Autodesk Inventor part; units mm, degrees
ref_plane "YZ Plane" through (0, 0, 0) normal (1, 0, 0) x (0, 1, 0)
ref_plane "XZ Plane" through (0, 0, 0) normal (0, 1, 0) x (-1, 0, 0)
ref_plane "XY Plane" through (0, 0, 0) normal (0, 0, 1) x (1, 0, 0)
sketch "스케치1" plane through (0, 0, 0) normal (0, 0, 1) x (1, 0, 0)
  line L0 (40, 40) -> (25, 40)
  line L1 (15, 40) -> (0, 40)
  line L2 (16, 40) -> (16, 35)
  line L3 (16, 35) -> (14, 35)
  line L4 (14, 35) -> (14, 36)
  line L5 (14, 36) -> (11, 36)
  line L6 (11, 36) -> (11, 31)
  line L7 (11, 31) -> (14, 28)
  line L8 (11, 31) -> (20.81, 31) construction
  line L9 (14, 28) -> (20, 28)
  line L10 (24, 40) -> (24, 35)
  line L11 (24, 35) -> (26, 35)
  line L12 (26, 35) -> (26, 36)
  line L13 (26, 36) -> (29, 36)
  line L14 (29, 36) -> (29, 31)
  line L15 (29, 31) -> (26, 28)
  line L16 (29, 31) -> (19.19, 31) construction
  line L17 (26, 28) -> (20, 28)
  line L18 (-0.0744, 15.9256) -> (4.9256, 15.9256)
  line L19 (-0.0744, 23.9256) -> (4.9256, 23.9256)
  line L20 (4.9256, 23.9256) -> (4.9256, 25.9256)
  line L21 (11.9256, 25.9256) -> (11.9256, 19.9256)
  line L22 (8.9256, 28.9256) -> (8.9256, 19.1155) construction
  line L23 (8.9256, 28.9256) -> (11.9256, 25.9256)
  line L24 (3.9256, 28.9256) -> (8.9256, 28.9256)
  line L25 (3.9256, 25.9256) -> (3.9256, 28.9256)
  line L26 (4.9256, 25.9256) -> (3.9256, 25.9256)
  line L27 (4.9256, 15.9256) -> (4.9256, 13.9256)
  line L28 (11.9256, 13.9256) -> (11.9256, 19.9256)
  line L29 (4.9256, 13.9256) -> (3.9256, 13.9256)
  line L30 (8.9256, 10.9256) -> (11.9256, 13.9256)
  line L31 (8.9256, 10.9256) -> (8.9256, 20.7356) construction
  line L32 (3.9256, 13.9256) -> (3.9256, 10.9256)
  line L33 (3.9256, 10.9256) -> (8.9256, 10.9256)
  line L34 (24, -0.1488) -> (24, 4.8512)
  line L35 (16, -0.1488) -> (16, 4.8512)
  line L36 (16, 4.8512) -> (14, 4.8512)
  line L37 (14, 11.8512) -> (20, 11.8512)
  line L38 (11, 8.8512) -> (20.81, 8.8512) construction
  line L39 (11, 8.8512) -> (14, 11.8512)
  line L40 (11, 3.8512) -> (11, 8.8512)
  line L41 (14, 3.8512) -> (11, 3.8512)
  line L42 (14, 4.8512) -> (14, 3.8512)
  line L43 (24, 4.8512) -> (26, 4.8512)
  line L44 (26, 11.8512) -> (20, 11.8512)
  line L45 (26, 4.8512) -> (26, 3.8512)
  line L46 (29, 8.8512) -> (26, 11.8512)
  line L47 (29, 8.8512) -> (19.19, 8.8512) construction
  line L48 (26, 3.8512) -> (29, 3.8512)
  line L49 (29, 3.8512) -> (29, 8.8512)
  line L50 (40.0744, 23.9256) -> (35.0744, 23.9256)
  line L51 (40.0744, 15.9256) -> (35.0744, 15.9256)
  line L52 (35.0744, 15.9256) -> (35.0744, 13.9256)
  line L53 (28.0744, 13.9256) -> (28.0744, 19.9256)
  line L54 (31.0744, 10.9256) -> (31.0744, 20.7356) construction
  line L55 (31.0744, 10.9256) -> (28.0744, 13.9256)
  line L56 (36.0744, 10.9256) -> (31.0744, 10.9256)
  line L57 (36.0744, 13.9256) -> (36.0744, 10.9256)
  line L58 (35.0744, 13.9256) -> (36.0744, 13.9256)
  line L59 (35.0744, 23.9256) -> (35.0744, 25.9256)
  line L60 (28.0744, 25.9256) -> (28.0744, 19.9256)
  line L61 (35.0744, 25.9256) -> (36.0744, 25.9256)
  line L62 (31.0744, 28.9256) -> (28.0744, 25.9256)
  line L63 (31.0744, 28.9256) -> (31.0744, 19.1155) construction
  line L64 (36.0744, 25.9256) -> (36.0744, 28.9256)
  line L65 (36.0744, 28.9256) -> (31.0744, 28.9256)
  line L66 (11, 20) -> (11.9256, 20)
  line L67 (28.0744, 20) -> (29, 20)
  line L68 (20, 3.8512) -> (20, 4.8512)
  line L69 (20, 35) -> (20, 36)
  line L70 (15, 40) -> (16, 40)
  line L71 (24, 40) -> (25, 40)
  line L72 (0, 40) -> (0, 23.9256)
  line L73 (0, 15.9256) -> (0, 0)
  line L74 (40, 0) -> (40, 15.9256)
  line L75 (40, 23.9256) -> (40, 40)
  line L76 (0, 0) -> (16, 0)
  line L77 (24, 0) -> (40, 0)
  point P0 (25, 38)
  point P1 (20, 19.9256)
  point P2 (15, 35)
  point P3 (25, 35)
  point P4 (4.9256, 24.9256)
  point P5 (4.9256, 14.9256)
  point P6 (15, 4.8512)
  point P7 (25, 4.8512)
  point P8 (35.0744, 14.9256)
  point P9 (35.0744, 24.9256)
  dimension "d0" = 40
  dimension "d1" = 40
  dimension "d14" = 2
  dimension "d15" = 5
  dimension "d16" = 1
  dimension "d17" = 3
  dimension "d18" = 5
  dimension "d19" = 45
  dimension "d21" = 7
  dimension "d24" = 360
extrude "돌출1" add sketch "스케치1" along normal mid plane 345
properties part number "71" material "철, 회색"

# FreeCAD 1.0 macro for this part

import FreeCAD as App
import Part
import Sketcher

V = App.Vector
Q = App.Units.Quantity


def add_polygon(sketch, points):
    """Adds a closed chain of lines whose ends are joined by coincident constraints."""
    first, n = sketch.GeometryCount, len(points)
    for a, b in zip(points, points[1:] + points[:1]):
        sketch.addGeometry(Part.LineSegment(App.Vector(*a, 0), App.Vector(*b, 0)), False)
    for i in range(n):
        sketch.addConstraint(Sketcher.Constraint("Coincident", first + i, 2, first + (i + 1) % n, 1))

doc = App.newDocument("Part")
params = doc.addObject("Spreadsheet::Sheet", "Params")
for row, (alias, value) in enumerate([
    ("sketch1_width", "2 mm"),
    ("sketch1_width2", "3 mm"),
    ("sketch1_width3", "1 mm"),
    ("sketch1_width4", "5 mm"),
    ("sketch1_width5", "16 mm"),
    ("pad1_length", "345 mm"),
], start=1):
    params.set(f"A{row}", alias)
    params.set(f"B{row}", "=" + value)
    params.setAlias(f"B{row}", alias)

body = doc.addObject("PartDesign::Body", "Body")

# Sketch on XY plane
sketch1 = doc.addObject("Sketcher::SketchObject", "Sketch")
body.addObject(sketch1)
sketch1.AttachmentSupport = (doc.XY_Plane, [""])
sketch1.MapMode = "FlatFace"
add_polygon(sketch1, [(40, 23.9), (40, 40), (24, 40), (24, 35), (26, 35), (26, 36), (29, 36), (29, 31), (26, 28), (14, 28), (11, 31), (11, 36), (14, 36), (14, 35), (16, 35), (16, 40), (0, 40), (0, 23.9), (4.9, 23.9), (4.9, 25.9), (3.9, 25.9), (3.9, 28.9), (8.9, 28.9), (11.9, 25.9), (11.9, 13.9), (8.9, 10.9), (3.9, 10.9), (3.9, 13.9), (4.9, 13.9), (4.9, 15.9), (0, 15.9), (0, 0), (16, 0), (16, 4.9), (14, 4.9), (14, 3.9), (11, 3.9), (11, 8.9), (14, 11.9), (26, 11.9), (29, 8.9), (29, 3.9), (26, 3.9), (26, 4.9), (24, 4.9), (24, 0), (40, 0), (40, 15.9), (35.1, 15.9), (35.1, 13.9), (36.1, 13.9), (36.1, 10.9), (31.1, 10.9), (28.1, 13.9), (28.1, 25.9), (31.1, 28.9), (36.1, 28.9), (36.1, 25.9), (35.1, 25.9), (35.1, 23.9)])  # lines 0-59
sketch1.addConstraint(Sketcher.Constraint("Vertical", 0))
sketch1.addConstraint(Sketcher.Constraint("Horizontal", 1))
sketch1.addConstraint(Sketcher.Constraint("Vertical", 2))
sketch1.addConstraint(Sketcher.Constraint("Horizontal", 3))
sketch1.addConstraint(Sketcher.Constraint("Vertical", 4))
sketch1.addConstraint(Sketcher.Constraint("Horizontal", 5))
sketch1.addConstraint(Sketcher.Constraint("Vertical", 6))
sketch1.addConstraint(Sketcher.Constraint("Horizontal", 8))
sketch1.addConstraint(Sketcher.Constraint("Vertical", 10))
sketch1.addConstraint(Sketcher.Constraint("Horizontal", 11))
sketch1.addConstraint(Sketcher.Constraint("Vertical", 12))
sketch1.addConstraint(Sketcher.Constraint("Horizontal", 13))
sketch1.addConstraint(Sketcher.Constraint("Vertical", 14))
sketch1.addConstraint(Sketcher.Constraint("Horizontal", 15))
sketch1.addConstraint(Sketcher.Constraint("Vertical", 16))
sketch1.addConstraint(Sketcher.Constraint("Horizontal", 17))
sketch1.addConstraint(Sketcher.Constraint("Vertical", 18))
sketch1.addConstraint(Sketcher.Constraint("Horizontal", 19))
sketch1.addConstraint(Sketcher.Constraint("Vertical", 20))
sketch1.addConstraint(Sketcher.Constraint("Horizontal", 21))
sketch1.addConstraint(Sketcher.Constraint("Vertical", 23))
sketch1.addConstraint(Sketcher.Constraint("Horizontal", 25))
sketch1.addConstraint(Sketcher.Constraint("Vertical", 26))
sketch1.addConstraint(Sketcher.Constraint("Horizontal", 27))
sketch1.addConstraint(Sketcher.Constraint("Vertical", 28))
sketch1.addConstraint(Sketcher.Constraint("Horizontal", 29))
sketch1.addConstraint(Sketcher.Constraint("Vertical", 30))
sketch1.addConstraint(Sketcher.Constraint("Horizontal", 31))
sketch1.addConstraint(Sketcher.Constraint("Vertical", 32))
sketch1.addConstraint(Sketcher.Constraint("Horizontal", 33))
sketch1.addConstraint(Sketcher.Constraint("Vertical", 34))
sketch1.addConstraint(Sketcher.Constraint("Horizontal", 35))
sketch1.addConstraint(Sketcher.Constraint("Vertical", 36))
sketch1.addConstraint(Sketcher.Constraint("Horizontal", 38))
sketch1.addConstraint(Sketcher.Constraint("Vertical", 40))
sketch1.addConstraint(Sketcher.Constraint("Horizontal", 41))
sketch1.addConstraint(Sketcher.Constraint("Vertical", 42))
sketch1.addConstraint(Sketcher.Constraint("Horizontal", 43))
sketch1.addConstraint(Sketcher.Constraint("Vertical", 44))
sketch1.addConstraint(Sketcher.Constraint("Horizontal", 45))
sketch1.addConstraint(Sketcher.Constraint("Vertical", 46))
sketch1.addConstraint(Sketcher.Constraint("Horizontal", 47))
sketch1.addConstraint(Sketcher.Constraint("Vertical", 48))
sketch1.addConstraint(Sketcher.Constraint("Horizontal", 49))
sketch1.addConstraint(Sketcher.Constraint("Vertical", 50))
sketch1.addConstraint(Sketcher.Constraint("Horizontal", 51))
sketch1.addConstraint(Sketcher.Constraint("Vertical", 53))
sketch1.addConstraint(Sketcher.Constraint("Horizontal", 55))
sketch1.addConstraint(Sketcher.Constraint("Vertical", 56))
sketch1.addConstraint(Sketcher.Constraint("Horizontal", 57))
sketch1.addConstraint(Sketcher.Constraint("Vertical", 58))
sketch1.addConstraint(Sketcher.Constraint("Horizontal", 59))
sketch1.addConstraint(Sketcher.Constraint("Coincident", 30, 2, -1, 1))
sketch1.addConstraint(Sketcher.Constraint("PointOnObject", 15, 2, -2))
sketch1.addConstraint(Sketcher.Constraint("PointOnObject", 44, 2, -1))
sketch1.addConstraint(Sketcher.Constraint("Perpendicular", 7, 9))
sketch1.addConstraint(Sketcher.Constraint("Parallel", 9, 22))
sketch1.addConstraint(Sketcher.Constraint("Perpendicular", 22, 24))
sketch1.addConstraint(Sketcher.Constraint("Parallel", 24, 37))
sketch1.addConstraint(Sketcher.Constraint("Perpendicular", 37, 39))
sketch1.addConstraint(Sketcher.Constraint("Parallel", 39, 52))
sketch1.addConstraint(Sketcher.Constraint("Perpendicular", 52, 54))
sketch1.addConstraint(Sketcher.Constraint("Horizontal", 6, 2, 9, 2))
sketch1.addConstraint(Sketcher.Constraint("Horizontal", 5, 2, 10, 2))
sketch1.addConstraint(Sketcher.Constraint("Horizontal", 3, 2, 12, 2))
sketch1.addConstraint(Sketcher.Constraint("Horizontal", 1, 2, 14, 2))
sketch1.addConstraint(Sketcher.Constraint("Horizontal", 19, 2, 22, 2))
sketch1.addConstraint(Sketcher.Constraint("Horizontal", 23, 2, 26, 2))
sketch1.addConstraint(Sketcher.Constraint("Horizontal", 36, 2, 39, 2))
sketch1.addConstraint(Sketcher.Constraint("Horizontal", 35, 2, 40, 2))
sketch1.addConstraint(Sketcher.Constraint("Horizontal", 33, 2, 42, 2))
sketch1.addConstraint(Sketcher.Constraint("Horizontal", 29, 2, 46, 2))
sketch1.addConstraint(Sketcher.Constraint("Horizontal", 27, 2, 48, 2))
sketch1.addConstraint(Sketcher.Constraint("Horizontal", 25, 2, 50, 2))
sketch1.addConstraint(Sketcher.Constraint("Horizontal", 49, 2, 52, 2))
sketch1.addConstraint(Sketcher.Constraint("Horizontal", 22, 2, 53, 2))
sketch1.addConstraint(Sketcher.Constraint("Horizontal", 21, 2, 54, 2))
sketch1.addConstraint(Sketcher.Constraint("Horizontal", 53, 2, 56, 2))
sketch1.addConstraint(Sketcher.Constraint("Horizontal", 17, 2, 58, 2))
sketch1.addConstraint(Sketcher.Constraint("Vertical", 4, 2, 7, 2))
sketch1.addConstraint(Sketcher.Constraint("Vertical", 8, 2, 11, 2))
sketch1.addConstraint(Sketcher.Constraint("Vertical", 21, 2, 24, 2))
sketch1.addConstraint(Sketcher.Constraint("Vertical", 20, 2, 25, 2))
sketch1.addConstraint(Sketcher.Constraint("Vertical", 18, 2, 27, 2))
sketch1.addConstraint(Sketcher.Constraint("Vertical", 14, 2, 31, 2))
sketch1.addConstraint(Sketcher.Constraint("Vertical", 12, 2, 33, 2))
sketch1.addConstraint(Sketcher.Constraint("Vertical", 10, 2, 35, 2))
sketch1.addConstraint(Sketcher.Constraint("Vertical", 34, 2, 37, 2))
sketch1.addConstraint(Sketcher.Constraint("Vertical", 7, 2, 38, 2))
sketch1.addConstraint(Sketcher.Constraint("Vertical", 6, 2, 39, 2))
sketch1.addConstraint(Sketcher.Constraint("Vertical", 38, 2, 41, 2))
sketch1.addConstraint(Sketcher.Constraint("Vertical", 2, 2, 43, 2))
sketch1.addConstraint(Sketcher.Constraint("Vertical", 0, 2, 45, 2))
sketch1.addConstraint(Sketcher.Constraint("Vertical", 50, 2, 55, 2))
sketch1.addConstraint(Sketcher.Constraint("Vertical", 48, 2, 57, 2))
sketch1.addConstraint(Sketcher.Constraint("Equal", 3, 13))
sketch1.addConstraint(Sketcher.Constraint("Equal", 1, 15))
sketch1.addConstraint(Sketcher.Constraint("Equal", 29, 47))
sketch1.addConstraint(Sketcher.Constraint("Equal", 27, 49))
sketch1.addConstraint(Sketcher.Constraint("Equal", 25, 51))
sketch1.addConstraint(Sketcher.Constraint("Equal", 55, 2))
sketch1.addConstraint(Sketcher.Constraint("Equal", 57, 4))
sketch1.addConstraint(Sketcher.Constraint("Equal", 2, 6))
sketch1.addConstraint(Sketcher.Constraint("Equal", 43, 18))
sketch1.addConstraint(Sketcher.Constraint("Equal", 41, 20))
sketch1.addConstraint(Sketcher.Constraint("Equal", 38, 23))
sketch1.addConstraint(Sketcher.Constraint("Equal", 18, 28))
sketch1.addConstraint(Sketcher.Constraint("Equal", 12, 34))
sketch1.addConstraint(Sketcher.Constraint("Equal", 14, 36))
sketch1.addConstraint(Sketcher.Constraint("DistanceX", 3, 1, 3, 2, Q("2 mm")))
sketch1.addConstraint(Sketcher.Constraint("DistanceX", 5, 1, 5, 2, Q("3 mm")))
sketch1.addConstraint(Sketcher.Constraint("DistanceX", 19, 2, 19, 1, Q("1 mm")))
sketch1.addConstraint(Sketcher.Constraint("DistanceX", 21, 1, 21, 2, Q("5 mm")))
sketch1.addConstraint(Sketcher.Constraint("DistanceX", -1, 1, 0, 2, Q("40 mm")))
sketch1.addConstraint(Sketcher.Constraint("DistanceY", -1, 1, 0, 2, Q("40 mm")))
sketch1.addConstraint(Sketcher.Constraint("DistanceX", 1, 2, 1, 1, Q("16 mm")))
sketch1.addConstraint(Sketcher.Constraint("DistanceX", 17, 1, 17, 2, Q("4.9256 mm")))
sketch1.addConstraint(Sketcher.Constraint("DistanceY", 0, 1, 0, 2, Q("16.0744 mm")))
sketch1.addConstraint(Sketcher.Constraint("DistanceY", 32, 1, 32, 2, Q("4.8512 mm")))
sketch1.setExpression("Constraints[169]", "Params.sketch1_width")
sketch1.setExpression("Constraints[170]", "Params.sketch1_width2")
sketch1.setExpression("Constraints[171]", "Params.sketch1_width3")
sketch1.setExpression("Constraints[172]", "Params.sketch1_width4")
sketch1.setExpression("Constraints[175]", "Params.sketch1_width5")
pad1 = doc.addObject("PartDesign::Pad", "Pad")
body.addObject(pad1)
pad1.Profile = sketch1
pad1.setExpression("Length", "Params.pad1_length")
pad1.Midplane = True

doc.recompute()
